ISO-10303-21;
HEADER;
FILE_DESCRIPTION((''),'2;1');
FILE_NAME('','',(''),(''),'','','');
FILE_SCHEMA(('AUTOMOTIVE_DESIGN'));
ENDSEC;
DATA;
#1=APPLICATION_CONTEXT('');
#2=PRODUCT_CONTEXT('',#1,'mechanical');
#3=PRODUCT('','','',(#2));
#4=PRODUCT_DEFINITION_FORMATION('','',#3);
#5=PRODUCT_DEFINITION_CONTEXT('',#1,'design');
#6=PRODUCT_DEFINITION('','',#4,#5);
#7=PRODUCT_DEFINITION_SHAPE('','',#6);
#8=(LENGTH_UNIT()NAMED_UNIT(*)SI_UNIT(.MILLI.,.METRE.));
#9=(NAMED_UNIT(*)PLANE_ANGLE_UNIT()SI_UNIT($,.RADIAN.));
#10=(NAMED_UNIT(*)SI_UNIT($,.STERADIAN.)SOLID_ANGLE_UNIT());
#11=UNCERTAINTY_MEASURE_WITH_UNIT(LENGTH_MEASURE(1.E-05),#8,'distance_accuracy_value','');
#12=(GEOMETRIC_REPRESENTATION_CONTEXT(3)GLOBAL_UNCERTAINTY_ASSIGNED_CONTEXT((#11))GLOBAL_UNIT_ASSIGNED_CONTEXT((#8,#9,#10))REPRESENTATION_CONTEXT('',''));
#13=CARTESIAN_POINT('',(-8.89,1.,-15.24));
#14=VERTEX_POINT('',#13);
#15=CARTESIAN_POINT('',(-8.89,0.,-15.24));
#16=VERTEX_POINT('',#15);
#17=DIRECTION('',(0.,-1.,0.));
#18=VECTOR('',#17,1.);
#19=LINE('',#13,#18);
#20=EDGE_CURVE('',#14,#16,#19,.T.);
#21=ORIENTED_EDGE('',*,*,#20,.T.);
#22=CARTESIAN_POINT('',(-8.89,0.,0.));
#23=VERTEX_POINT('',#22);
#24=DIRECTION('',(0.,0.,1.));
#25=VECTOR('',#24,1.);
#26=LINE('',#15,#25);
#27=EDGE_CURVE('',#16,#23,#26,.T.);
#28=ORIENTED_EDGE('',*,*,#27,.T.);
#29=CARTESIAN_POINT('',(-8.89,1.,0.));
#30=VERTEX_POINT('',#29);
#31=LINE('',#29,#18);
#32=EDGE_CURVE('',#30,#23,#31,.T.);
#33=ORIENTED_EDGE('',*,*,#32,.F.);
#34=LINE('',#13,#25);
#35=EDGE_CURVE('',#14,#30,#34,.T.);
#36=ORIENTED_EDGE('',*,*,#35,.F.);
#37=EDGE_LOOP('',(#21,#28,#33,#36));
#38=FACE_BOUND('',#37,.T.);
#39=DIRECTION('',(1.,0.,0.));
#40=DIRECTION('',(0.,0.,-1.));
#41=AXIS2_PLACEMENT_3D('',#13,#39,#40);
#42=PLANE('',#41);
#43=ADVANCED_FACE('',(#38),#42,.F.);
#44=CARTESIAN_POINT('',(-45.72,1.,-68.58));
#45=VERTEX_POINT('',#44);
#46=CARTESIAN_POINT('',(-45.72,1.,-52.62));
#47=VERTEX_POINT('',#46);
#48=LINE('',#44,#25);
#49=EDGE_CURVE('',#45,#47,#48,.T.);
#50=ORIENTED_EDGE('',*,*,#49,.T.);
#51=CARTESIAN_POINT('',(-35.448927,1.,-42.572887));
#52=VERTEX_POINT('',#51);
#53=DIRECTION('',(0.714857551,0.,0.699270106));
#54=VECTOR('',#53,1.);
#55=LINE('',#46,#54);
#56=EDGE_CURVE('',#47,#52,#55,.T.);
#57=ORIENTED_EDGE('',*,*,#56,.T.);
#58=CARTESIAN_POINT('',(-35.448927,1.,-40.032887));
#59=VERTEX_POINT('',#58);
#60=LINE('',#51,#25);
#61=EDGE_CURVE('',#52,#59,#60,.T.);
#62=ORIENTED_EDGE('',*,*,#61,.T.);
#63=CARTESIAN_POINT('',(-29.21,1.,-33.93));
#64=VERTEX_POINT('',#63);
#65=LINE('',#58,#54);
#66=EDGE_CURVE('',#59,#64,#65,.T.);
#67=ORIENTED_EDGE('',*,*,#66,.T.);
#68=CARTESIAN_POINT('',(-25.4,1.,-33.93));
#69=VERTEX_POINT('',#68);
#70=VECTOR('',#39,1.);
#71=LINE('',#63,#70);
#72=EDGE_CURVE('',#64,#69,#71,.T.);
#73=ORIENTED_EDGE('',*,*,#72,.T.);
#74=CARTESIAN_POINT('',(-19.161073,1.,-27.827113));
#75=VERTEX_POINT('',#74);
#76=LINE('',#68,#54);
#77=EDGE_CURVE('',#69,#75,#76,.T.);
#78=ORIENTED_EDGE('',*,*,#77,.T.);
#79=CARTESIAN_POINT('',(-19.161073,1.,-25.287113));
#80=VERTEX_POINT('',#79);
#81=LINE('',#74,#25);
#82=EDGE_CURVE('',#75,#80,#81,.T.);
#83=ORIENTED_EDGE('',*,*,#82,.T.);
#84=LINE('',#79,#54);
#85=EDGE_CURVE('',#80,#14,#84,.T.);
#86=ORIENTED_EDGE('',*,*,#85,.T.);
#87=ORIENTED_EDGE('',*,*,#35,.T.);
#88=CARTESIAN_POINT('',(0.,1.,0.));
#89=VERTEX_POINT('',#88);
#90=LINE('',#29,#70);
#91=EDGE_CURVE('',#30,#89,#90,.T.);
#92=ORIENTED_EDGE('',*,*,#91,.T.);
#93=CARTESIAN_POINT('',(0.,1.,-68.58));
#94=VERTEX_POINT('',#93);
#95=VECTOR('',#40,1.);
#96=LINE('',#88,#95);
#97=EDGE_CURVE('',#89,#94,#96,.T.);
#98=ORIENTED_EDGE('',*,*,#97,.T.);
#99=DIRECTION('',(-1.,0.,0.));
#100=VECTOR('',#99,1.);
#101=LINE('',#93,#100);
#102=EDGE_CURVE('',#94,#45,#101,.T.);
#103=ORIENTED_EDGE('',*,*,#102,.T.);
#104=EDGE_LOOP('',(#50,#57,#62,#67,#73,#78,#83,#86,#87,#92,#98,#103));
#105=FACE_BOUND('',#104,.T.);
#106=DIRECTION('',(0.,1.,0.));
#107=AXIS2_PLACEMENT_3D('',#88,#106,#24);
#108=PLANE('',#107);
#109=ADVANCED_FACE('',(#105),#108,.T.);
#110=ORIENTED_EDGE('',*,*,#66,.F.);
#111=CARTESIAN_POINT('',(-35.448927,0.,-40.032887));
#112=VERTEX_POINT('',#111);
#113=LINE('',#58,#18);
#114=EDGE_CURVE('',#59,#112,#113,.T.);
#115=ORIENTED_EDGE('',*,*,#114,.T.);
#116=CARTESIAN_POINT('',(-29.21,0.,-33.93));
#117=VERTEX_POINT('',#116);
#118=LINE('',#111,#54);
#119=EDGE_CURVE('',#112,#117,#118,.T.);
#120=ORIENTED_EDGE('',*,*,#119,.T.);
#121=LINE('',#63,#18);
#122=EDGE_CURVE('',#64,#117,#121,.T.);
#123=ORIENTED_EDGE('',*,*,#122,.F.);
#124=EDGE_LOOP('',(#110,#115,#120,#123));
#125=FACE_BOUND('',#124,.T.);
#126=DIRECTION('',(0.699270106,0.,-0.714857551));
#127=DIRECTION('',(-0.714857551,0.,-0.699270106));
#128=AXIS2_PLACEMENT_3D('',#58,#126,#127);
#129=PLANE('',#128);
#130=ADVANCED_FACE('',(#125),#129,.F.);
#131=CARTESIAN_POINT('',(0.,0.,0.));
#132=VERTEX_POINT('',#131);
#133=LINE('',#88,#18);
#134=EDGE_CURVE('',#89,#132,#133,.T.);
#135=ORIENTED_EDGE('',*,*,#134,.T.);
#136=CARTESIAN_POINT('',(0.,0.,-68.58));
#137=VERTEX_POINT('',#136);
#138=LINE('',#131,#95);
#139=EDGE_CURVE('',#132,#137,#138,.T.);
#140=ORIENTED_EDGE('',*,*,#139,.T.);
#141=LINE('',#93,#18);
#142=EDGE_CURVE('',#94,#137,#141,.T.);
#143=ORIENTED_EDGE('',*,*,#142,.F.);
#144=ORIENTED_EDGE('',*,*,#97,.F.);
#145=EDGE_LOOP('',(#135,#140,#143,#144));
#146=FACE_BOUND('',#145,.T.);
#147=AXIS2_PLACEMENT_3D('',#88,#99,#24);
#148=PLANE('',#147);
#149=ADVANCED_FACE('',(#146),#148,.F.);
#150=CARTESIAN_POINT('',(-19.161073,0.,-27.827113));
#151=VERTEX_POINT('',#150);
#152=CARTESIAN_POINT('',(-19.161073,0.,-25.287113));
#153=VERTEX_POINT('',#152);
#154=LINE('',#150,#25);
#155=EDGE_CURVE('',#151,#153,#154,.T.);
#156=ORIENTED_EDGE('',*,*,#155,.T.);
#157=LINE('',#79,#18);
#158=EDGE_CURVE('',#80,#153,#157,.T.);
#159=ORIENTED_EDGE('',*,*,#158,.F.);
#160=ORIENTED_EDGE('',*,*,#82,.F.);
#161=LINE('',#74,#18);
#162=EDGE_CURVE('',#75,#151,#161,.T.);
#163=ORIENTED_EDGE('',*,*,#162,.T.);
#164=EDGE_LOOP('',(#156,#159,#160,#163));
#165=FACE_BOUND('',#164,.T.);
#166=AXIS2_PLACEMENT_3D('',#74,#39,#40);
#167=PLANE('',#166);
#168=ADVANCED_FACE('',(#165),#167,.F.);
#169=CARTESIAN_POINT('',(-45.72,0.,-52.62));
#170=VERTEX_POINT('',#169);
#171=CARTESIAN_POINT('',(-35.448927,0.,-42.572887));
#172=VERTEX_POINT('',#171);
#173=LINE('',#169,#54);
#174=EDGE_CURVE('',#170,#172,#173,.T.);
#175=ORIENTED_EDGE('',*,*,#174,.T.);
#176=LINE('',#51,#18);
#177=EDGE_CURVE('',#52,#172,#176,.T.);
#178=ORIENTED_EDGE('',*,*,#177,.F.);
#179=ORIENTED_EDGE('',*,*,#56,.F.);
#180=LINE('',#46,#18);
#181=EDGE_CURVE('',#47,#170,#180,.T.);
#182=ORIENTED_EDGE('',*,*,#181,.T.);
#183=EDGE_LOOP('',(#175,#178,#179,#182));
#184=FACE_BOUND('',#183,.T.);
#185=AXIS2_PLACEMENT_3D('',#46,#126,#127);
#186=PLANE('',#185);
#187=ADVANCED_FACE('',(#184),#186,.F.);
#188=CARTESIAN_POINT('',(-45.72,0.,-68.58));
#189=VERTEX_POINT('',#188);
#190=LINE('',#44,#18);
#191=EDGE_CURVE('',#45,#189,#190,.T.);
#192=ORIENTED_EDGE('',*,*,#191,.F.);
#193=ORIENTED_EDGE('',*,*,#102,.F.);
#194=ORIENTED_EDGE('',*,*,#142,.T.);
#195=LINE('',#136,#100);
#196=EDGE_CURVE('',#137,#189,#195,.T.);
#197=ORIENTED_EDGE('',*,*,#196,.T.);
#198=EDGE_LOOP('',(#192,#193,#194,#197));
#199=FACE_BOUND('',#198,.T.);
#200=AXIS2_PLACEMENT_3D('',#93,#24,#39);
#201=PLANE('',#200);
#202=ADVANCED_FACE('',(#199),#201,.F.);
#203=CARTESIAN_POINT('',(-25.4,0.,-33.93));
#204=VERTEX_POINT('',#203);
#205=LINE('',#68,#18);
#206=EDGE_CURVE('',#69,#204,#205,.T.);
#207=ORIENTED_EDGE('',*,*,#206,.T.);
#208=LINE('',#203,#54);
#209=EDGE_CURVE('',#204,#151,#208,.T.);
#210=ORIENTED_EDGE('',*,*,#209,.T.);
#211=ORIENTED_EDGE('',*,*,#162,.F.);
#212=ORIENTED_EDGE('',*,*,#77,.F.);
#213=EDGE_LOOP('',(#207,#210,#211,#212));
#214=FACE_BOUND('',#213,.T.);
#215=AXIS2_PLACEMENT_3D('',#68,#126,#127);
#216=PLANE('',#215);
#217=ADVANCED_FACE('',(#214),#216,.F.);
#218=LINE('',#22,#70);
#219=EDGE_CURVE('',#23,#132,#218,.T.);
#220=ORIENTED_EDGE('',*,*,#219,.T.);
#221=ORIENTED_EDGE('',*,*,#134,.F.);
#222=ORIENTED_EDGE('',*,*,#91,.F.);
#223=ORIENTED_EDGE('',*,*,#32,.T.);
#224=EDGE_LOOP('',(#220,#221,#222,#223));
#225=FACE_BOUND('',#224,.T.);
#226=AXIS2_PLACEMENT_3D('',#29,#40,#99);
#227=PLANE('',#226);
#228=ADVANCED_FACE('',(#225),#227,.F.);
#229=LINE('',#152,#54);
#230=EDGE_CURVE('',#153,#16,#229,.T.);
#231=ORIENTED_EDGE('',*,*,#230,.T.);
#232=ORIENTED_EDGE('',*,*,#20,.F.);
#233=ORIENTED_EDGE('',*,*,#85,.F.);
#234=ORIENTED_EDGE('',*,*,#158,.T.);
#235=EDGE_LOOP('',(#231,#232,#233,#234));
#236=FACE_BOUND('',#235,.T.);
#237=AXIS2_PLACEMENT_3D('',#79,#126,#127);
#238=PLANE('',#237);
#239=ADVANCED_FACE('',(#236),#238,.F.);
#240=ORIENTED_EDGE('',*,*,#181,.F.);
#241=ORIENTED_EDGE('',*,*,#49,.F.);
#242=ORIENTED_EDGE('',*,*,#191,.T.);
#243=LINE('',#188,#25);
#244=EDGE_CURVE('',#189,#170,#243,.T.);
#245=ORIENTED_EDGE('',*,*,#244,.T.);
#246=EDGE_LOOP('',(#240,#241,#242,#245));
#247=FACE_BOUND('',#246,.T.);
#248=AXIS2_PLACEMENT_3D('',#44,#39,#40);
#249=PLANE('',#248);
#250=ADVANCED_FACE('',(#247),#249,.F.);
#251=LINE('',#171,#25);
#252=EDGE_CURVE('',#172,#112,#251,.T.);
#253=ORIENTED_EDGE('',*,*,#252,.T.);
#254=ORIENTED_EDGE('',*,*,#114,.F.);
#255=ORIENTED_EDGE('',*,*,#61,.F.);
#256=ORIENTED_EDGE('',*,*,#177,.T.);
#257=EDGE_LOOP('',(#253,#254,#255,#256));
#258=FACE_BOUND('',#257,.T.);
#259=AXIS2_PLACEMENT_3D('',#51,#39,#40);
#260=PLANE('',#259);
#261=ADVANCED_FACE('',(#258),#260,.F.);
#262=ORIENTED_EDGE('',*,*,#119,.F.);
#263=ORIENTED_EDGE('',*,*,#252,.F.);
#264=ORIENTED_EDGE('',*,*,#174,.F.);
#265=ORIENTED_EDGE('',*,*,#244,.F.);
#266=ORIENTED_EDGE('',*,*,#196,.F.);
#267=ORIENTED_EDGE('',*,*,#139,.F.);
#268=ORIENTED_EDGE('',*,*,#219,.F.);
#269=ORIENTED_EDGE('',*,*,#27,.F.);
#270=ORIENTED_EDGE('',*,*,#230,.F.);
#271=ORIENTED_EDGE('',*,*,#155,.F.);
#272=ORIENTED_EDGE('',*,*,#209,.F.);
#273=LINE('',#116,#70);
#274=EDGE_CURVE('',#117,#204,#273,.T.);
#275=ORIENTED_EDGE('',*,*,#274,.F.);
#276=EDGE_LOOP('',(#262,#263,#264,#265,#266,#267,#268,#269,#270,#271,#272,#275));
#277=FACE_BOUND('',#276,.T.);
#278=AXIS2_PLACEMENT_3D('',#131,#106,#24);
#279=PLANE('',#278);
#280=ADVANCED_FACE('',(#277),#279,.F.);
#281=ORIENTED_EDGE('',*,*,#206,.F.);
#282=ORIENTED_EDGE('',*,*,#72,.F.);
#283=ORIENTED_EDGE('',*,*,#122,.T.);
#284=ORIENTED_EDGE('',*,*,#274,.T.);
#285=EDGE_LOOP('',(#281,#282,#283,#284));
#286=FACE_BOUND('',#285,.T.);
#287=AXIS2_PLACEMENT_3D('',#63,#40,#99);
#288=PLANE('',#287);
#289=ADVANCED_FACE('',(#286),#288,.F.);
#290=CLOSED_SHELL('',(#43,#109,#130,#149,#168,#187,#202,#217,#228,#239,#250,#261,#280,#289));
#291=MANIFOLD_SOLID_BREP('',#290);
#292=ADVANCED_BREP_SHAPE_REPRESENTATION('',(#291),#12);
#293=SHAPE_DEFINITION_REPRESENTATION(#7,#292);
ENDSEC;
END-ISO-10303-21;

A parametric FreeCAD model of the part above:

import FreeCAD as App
import Part
import Sketcher
Q = App.Units.Quantity


def add_polygon(sketch, points):
    """Adds a closed chain of lines whose ends are joined by coincident constraints."""
    first, n = sketch.GeometryCount, len(points)
    for a, b in zip(points, points[1:] + points[:1]):
        sketch.addGeometry(Part.LineSegment(App.Vector(*a, 0), App.Vector(*b, 0)), False)
    for i in range(n):
        sketch.addConstraint(Sketcher.Constraint("Coincident", first + i, 2, first + (i + 1) % n, 1))

doc = App.newDocument("Part")
body = doc.addObject("PartDesign::Body", "Body")

# Sketch on XZ plane
sketch1 = body.newObject("Sketcher::SketchObject", "Sketch")
sketch1.AttachmentSupport = (doc.getObject("XZ_Plane"), [""])
sketch1.MapMode = "FlatFace"
add_polygon(sketch1, [(0, 0), (0, -68.6), (-45.7, -68.6), (-45.7, -52.6), (-35.4, -42.6), (-35.4, -40), (-29.2, -33.9), (-25.4, -33.9), (-19.2, -27.8), (-19.2, -25.3), (-8.9, -15.2), (-8.9, 0)])  # lines 0-11
sketch1.addConstraint([
    Sketcher.Constraint("Vertical", 0),
    Sketcher.Constraint("Horizontal", 1),
    Sketcher.Constraint("Vertical", 2),
    Sketcher.Constraint("Vertical", 4),
    Sketcher.Constraint("Horizontal", 6),
    Sketcher.Constraint("Vertical", 8),
    Sketcher.Constraint("Vertical", 10),
    Sketcher.Constraint("Horizontal", 11),
    Sketcher.Constraint("Coincident", 11, 2, -1, 1),
    Sketcher.Constraint("Parallel", 3, 5),
    Sketcher.Constraint("Parallel", 5, 7),
    Sketcher.Constraint("Parallel", 7, 9),
    Sketcher.Constraint("Equal", 4, 8),
    Sketcher.Constraint("Equal", 5, 7),
    Sketcher.Constraint("Equal", 3, 9),
    Sketcher.Constraint("DistanceX", 1, 2, 1, 1, Q("1.8 in")),
    Sketcher.Constraint("DistanceY", 0, 2, 0, 1, Q("2.7 in")),
    Sketcher.Constraint("DistanceY", 4, 1, 4, 2, Q("0.1 in")),
    Sketcher.Constraint("DistanceY", 10, 1, 10, 2, Q("0.6 in")),
    Sketcher.Constraint("DistanceX", 6, 2, -1, 1, Q("1 in")),
    Sketcher.Constraint("DistanceX", 6, 1, 6, 2, Q("0.15 in")),
    Sketcher.Constraint("DistanceY", 2, 1, 2, 2, Q("15.96 mm")),
    Sketcher.Constraint("Distance", 3, Q("14.368 mm")),
])
pad1 = body.newObject("PartDesign::Pad", "Pad")
pad1.Profile = sketch1
pad1.Length = 1
pad1.Reversed = True

doc.recompute()
